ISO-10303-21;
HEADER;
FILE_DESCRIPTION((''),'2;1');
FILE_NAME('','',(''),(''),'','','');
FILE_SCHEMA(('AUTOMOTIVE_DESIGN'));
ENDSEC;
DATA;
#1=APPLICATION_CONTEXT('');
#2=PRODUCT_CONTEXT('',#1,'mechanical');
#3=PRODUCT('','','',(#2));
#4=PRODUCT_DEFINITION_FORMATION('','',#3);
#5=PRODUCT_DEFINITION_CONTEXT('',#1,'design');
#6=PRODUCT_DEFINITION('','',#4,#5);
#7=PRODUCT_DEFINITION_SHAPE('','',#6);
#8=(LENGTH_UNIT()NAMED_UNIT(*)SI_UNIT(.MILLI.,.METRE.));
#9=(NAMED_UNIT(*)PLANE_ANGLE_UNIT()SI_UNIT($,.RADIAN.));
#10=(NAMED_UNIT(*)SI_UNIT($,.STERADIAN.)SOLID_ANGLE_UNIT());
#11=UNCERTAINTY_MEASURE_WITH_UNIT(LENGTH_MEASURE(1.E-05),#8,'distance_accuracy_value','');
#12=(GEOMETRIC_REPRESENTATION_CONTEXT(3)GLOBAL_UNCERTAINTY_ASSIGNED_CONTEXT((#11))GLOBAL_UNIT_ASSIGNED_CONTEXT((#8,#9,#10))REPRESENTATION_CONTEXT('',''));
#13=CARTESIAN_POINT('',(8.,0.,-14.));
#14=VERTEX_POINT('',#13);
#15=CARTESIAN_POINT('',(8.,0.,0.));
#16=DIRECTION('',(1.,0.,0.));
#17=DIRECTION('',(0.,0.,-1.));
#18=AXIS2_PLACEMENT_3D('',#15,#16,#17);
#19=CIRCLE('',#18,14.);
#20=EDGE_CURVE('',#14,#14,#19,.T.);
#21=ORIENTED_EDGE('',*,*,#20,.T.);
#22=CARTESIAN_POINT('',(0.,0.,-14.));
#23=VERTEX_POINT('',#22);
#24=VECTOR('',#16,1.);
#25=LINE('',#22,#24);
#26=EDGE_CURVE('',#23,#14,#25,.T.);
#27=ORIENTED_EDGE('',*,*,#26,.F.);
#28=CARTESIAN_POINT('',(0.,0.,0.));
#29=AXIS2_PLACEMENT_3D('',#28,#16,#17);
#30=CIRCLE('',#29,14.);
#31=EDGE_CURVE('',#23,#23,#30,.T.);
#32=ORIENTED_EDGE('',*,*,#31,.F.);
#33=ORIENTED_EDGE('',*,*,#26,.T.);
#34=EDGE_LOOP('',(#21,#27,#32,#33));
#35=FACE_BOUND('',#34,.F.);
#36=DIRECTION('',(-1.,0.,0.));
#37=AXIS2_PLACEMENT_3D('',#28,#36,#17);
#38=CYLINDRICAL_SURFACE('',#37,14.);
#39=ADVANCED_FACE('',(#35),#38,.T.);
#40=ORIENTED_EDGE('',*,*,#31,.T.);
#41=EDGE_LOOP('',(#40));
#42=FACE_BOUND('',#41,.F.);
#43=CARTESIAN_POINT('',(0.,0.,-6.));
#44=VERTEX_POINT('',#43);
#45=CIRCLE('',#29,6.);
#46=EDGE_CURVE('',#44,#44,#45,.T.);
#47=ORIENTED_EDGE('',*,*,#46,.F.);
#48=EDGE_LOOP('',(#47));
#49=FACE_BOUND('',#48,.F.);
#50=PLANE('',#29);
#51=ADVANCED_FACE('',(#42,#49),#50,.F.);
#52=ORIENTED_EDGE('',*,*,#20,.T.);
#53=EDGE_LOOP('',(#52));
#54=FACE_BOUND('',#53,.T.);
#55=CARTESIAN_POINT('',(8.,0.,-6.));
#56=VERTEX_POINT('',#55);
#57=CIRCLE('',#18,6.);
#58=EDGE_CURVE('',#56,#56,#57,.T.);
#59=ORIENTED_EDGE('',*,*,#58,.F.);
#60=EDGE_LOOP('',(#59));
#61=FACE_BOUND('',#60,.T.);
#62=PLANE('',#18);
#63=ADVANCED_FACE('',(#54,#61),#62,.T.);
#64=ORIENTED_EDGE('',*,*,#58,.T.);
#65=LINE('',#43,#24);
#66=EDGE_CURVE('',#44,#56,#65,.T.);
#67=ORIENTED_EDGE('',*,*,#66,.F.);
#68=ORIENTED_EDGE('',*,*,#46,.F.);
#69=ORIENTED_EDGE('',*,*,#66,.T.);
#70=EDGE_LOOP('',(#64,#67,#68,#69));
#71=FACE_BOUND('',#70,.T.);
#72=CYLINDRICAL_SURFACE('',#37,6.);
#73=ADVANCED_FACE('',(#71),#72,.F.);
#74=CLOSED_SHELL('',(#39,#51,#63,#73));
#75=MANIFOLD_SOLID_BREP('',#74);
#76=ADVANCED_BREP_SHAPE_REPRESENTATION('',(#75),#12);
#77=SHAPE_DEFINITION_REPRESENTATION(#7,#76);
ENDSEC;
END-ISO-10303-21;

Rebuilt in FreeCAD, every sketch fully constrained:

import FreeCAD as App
import Part
import Sketcher

V = App.Vector

doc = App.newDocument("Part")
params = doc.addObject("Spreadsheet::Sheet", "Params")
for row, (alias, value) in enumerate([
    ("sketch1_diameter", "28 mm"),
    ("sketch1_diameter2", "12 mm"),
    ("pad1_length", "8 mm"),
], start=1):
    params.set(f"A{row}", alias)
    params.set(f"B{row}", "=" + value)
    params.setAlias(f"B{row}", alias)

body = doc.addObject("PartDesign::Body", "Body")

sketch1 = body.newObject("Sketcher::SketchObject", "Sketch")
sketch1.AttachmentSupport = (doc.getObject("YZ_Plane"), [""])
sketch1.MapMode = "FlatFace"
sketch1.addGeometry(Part.Circle(V(0, 0, 0), V(0, 0, 1), 14), False)
sketch1.addGeometry(Part.Circle(V(0, 0, 0), V(0, 0, 1), 6), False)
sketch1.addConstraint(Sketcher.Constraint("Coincident", 0, 3, -1, 1))
sketch1.addConstraint(Sketcher.Constraint("Coincident", 1, 3, -1, 1))
sketch1.addConstraint(Sketcher.Constraint("Diameter", 0, 28.0))
sketch1.addConstraint(Sketcher.Constraint("Diameter", 1, 12.0))
sketch1.setExpression("Constraints[2]", "Params.sketch1_diameter")
sketch1.setExpression("Constraints[3]", "Params.sketch1_diameter2")
pad1 = body.newObject("PartDesign::Pad", "Pad")
pad1.Profile = sketch1
pad1.setExpression("Length", "Params.pad1_length")

doc.recompute()
